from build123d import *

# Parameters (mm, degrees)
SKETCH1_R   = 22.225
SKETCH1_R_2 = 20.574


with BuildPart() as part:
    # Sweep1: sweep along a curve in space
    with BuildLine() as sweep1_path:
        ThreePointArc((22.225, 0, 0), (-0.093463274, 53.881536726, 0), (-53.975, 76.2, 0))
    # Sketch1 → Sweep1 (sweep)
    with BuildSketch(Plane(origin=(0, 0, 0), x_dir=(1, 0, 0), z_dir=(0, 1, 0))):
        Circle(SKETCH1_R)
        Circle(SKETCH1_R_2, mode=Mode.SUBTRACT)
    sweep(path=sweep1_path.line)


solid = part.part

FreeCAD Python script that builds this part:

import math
import FreeCAD as App
import Part
import Sketcher
Q = App.Units.Quantity

doc = App.newDocument("Part")
body = doc.addObject("PartDesign::Body", "Body")

sketch1 = doc.addObject("Sketcher::SketchObject", "Sketch")
body.addObject(sketch1)
sketch1.AttachmentSupport = (doc.XZ_Plane, [""])
sketch1.MapMode = "FlatFace"
sketch1.addGeometry(Part.Circle(App.Vector(0, 0, 0), App.Vector(0, 0, 1), 22.225), False)
sketch1.addGeometry(Part.Circle(App.Vector(0, 0, 0), App.Vector(0, 0, 1), 20.574), False)
sketch1.addConstraint(Sketcher.Constraint("Coincident", 0, 3, -1, 1))
sketch1.addConstraint(Sketcher.Constraint("Coincident", 1, 3, -1, 1))
sketch1.addConstraint(Sketcher.Constraint("Diameter", 0, Q("1.75 in")))
sketch1.addConstraint(Sketcher.Constraint("Diameter", 1, Q("1.62 in")))

sketch2 = doc.addObject("Sketcher::SketchObject", "Sketch001")
body.addObject(sketch2)
sketch2.AttachmentSupport = (doc.XY_Plane, [""])
sketch2.MapMode = "FlatFace"
sketch2.addGeometry(Part.ArcOfCircle(Part.Circle(App.Vector(-53.975, 0, 0), App.Vector(0, 0, 1), 76.2), math.radians(0), math.radians(90)), False)
sketch2.addConstraint(Sketcher.Constraint("PointOnObject", 0, 3, -1))
sketch2.addConstraint(Sketcher.Constraint("PointOnObject", 0, 1, -1))
sketch2.addConstraint(Sketcher.Constraint("Radius", 0, Q("3 in")))
sketch2.addConstraint(Sketcher.Constraint("DistanceX", 0, 2, 0, 1, Q("3 in")))
sketch2.addConstraint(Sketcher.Constraint("DistanceX", 0, 3, -1, 1, Q("2.125 in")))
doc.recompute()

additivepipe = doc.addObject("PartDesign::AdditivePipe", "AdditivePipe")
body.addObject(additivepipe)
additivepipe.Profile = sketch1
additivepipe.Spine = (sketch2, ["Edge1"])

doc.recompute()
